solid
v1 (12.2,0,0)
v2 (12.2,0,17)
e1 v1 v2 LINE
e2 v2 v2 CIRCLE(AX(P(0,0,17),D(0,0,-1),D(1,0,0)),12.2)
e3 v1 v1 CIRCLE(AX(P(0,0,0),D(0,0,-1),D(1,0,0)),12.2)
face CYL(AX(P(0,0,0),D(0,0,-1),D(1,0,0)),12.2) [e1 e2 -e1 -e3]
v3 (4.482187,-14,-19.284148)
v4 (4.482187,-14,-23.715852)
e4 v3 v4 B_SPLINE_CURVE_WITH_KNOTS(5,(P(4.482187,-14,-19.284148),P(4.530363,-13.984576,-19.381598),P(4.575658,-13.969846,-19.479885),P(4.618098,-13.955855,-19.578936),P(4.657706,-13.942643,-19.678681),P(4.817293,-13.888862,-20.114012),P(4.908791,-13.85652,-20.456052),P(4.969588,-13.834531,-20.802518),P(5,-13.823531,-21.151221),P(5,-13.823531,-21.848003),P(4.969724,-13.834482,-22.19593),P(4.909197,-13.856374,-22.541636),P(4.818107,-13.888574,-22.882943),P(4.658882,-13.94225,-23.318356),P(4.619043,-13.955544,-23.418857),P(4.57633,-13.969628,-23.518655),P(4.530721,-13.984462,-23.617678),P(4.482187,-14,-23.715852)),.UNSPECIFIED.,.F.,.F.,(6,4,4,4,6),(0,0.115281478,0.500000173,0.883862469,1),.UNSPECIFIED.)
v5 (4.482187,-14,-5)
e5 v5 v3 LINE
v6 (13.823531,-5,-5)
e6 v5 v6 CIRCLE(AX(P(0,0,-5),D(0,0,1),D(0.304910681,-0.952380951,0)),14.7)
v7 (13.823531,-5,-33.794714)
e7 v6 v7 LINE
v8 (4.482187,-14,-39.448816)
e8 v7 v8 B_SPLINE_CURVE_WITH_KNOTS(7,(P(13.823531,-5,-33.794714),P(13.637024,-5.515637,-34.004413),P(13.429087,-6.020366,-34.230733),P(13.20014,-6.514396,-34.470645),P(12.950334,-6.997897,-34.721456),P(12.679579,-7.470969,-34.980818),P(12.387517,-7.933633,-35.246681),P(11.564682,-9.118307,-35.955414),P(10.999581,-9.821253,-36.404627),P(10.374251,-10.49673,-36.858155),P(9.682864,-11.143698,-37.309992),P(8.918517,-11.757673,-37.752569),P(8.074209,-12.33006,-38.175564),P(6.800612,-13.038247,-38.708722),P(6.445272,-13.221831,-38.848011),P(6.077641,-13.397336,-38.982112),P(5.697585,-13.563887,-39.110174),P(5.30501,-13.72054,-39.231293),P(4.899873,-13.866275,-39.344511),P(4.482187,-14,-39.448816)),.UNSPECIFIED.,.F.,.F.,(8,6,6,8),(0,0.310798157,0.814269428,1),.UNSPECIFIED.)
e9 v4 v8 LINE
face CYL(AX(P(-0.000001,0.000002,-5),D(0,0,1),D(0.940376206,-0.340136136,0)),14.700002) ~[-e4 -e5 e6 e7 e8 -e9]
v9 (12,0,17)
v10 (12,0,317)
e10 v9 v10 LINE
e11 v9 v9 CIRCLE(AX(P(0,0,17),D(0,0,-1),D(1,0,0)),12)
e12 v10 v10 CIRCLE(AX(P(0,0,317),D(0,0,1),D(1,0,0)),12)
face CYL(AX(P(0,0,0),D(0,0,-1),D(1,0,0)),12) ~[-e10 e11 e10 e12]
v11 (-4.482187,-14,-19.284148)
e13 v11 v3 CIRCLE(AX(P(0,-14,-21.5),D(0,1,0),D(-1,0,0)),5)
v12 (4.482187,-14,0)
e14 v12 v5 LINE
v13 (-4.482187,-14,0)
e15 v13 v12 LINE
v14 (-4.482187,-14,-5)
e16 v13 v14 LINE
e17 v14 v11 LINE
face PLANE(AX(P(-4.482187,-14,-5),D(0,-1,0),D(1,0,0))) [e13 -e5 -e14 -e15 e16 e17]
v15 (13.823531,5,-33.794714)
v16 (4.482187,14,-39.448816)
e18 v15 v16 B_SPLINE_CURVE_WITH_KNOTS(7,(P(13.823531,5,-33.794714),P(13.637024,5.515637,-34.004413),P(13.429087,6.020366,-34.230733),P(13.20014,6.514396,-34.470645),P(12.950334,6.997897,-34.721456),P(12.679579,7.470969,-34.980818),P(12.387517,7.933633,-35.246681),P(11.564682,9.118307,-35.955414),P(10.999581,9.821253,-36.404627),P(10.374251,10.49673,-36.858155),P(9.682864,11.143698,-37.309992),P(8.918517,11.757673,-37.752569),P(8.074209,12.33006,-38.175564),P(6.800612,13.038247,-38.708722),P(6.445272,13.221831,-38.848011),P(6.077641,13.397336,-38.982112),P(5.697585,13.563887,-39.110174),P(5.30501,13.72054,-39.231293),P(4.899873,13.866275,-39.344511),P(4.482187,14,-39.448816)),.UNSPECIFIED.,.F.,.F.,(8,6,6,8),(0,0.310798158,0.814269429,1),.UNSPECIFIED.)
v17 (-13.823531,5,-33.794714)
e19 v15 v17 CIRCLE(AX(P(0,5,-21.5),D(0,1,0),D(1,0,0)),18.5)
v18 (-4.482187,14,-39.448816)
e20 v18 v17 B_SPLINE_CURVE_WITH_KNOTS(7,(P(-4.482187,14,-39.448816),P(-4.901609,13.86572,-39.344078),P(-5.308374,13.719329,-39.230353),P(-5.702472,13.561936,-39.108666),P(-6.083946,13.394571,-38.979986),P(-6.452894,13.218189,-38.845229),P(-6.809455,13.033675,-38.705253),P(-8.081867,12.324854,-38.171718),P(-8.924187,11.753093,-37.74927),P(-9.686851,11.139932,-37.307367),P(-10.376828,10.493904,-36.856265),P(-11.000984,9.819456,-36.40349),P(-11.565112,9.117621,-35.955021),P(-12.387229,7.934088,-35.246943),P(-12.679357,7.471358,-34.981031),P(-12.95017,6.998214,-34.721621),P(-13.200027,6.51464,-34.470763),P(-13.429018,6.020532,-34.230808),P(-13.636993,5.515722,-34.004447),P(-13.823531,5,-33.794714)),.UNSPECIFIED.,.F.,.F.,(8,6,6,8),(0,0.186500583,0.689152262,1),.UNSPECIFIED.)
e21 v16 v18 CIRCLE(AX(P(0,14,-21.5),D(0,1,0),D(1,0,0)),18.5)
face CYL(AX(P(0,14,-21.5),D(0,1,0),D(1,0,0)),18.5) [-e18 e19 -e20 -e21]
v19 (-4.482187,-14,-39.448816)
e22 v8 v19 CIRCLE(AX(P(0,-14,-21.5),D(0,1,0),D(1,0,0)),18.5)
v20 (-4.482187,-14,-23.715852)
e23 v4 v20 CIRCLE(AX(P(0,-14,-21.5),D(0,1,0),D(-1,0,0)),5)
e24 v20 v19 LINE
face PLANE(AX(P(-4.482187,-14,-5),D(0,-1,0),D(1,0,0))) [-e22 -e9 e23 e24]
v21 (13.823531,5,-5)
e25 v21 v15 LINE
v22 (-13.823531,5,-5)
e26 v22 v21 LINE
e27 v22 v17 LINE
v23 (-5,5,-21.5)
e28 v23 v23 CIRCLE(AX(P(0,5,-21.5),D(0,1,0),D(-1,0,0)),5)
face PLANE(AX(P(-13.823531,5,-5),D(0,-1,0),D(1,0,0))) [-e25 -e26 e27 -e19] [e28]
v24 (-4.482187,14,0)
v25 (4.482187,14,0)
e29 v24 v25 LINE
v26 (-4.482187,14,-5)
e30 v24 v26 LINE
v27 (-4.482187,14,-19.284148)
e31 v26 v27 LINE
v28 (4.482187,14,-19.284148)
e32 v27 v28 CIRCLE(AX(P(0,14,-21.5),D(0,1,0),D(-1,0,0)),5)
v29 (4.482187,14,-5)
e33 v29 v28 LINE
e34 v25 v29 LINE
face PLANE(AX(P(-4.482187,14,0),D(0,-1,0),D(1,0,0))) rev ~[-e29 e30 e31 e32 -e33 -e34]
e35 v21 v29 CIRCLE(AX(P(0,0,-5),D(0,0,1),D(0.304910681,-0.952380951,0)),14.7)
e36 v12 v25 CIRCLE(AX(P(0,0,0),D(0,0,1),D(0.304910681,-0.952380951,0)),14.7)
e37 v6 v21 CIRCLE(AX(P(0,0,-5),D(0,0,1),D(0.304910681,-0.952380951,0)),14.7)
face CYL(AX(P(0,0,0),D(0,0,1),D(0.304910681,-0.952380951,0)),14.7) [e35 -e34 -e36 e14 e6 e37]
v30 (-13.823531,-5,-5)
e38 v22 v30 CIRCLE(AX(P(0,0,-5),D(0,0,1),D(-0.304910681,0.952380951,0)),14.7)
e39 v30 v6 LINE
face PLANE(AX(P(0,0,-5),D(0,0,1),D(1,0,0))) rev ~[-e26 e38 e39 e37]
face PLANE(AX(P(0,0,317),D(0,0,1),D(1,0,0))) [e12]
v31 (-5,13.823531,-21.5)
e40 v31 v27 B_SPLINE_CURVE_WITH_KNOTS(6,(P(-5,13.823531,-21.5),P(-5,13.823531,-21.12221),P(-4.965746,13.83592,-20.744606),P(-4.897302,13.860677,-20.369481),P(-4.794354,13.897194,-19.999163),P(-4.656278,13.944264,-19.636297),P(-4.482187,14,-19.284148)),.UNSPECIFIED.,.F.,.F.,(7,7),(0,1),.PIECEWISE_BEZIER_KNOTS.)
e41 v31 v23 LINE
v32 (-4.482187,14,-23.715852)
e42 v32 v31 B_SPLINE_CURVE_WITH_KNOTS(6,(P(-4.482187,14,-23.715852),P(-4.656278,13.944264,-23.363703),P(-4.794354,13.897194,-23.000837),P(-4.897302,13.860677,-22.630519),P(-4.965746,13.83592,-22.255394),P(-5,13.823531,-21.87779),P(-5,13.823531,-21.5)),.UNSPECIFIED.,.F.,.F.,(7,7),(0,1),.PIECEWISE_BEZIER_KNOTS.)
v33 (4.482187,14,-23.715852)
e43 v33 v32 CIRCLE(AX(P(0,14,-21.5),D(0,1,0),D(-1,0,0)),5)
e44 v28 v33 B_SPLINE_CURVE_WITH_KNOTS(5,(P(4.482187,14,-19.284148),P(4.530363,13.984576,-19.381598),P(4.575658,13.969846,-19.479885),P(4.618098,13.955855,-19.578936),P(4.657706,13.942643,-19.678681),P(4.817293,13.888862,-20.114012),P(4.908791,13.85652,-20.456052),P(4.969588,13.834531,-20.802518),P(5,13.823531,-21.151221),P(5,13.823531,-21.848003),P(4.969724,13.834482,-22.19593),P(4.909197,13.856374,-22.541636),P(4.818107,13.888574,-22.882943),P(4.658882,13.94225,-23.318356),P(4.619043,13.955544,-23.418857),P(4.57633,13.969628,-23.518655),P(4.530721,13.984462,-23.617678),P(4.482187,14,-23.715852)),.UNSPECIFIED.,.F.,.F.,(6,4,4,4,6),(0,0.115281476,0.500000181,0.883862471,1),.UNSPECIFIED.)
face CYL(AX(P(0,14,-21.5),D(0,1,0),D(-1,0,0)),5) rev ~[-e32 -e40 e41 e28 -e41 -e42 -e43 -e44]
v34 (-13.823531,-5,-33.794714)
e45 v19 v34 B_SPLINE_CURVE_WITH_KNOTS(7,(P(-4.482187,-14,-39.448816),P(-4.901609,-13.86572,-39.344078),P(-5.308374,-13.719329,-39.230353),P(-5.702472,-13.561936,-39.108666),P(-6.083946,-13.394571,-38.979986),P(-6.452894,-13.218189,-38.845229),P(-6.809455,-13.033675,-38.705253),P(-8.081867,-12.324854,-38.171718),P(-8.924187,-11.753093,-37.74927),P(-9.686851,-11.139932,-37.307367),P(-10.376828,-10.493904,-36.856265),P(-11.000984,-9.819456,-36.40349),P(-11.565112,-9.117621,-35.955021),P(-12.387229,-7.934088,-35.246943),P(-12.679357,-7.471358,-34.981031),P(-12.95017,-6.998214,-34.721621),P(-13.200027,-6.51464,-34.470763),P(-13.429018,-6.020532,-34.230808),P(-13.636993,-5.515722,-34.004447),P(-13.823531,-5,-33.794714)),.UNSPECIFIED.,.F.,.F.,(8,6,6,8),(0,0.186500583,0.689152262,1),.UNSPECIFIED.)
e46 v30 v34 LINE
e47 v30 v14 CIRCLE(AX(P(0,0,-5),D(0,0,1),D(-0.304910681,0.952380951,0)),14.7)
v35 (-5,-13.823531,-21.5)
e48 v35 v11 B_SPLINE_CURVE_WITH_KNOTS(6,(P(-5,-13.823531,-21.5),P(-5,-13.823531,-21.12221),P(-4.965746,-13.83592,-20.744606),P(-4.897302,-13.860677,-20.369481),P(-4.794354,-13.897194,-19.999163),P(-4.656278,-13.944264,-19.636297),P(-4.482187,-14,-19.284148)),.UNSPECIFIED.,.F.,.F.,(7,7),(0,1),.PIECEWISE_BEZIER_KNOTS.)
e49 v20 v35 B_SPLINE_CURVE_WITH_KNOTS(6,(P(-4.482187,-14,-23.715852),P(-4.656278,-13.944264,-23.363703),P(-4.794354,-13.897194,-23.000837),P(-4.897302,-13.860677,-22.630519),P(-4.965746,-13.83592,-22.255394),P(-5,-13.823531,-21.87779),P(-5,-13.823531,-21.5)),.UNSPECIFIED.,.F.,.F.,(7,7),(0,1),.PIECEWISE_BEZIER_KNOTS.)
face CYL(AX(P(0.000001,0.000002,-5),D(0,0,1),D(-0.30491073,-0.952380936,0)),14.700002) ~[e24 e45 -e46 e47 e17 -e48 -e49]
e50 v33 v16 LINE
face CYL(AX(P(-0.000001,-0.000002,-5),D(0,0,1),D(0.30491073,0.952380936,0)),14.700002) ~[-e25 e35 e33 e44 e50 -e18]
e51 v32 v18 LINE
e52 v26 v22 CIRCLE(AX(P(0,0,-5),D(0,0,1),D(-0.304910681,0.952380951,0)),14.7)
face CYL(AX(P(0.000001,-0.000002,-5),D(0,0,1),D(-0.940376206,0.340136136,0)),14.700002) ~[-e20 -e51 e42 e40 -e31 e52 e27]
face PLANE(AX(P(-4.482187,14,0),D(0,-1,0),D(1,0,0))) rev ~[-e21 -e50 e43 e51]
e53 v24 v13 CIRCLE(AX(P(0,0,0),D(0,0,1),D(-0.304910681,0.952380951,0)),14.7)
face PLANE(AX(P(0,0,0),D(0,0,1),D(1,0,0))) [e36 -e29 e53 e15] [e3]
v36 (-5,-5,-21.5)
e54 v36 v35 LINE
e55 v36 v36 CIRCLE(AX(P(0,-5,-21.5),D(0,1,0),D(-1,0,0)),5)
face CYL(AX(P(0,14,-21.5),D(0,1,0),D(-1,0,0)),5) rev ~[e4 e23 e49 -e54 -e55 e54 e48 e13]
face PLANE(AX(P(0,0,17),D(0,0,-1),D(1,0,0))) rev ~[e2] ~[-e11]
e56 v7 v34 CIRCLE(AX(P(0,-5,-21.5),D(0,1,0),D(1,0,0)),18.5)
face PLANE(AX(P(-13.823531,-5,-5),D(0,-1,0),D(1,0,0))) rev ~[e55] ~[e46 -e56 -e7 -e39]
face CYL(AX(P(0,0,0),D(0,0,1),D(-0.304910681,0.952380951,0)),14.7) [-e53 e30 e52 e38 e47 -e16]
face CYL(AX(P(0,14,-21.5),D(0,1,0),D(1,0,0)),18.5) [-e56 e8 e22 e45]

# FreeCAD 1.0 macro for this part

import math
import FreeCAD as App
import Part
import Sketcher

V = App.Vector

doc = App.newDocument("Part")
body = doc.addObject("PartDesign::Body", "Body")

# Sketch on XY plane
sketch1 = body.newObject("Sketcher::SketchObject", "Sketch")
sketch1.AttachmentSupport = (doc.getObject("XY_Plane"), [""])
sketch1.MapMode = "FlatFace"
sketch1.addGeometry(Part.Circle(V(0, 0, 0), V(0, 0, 1), 12), False)
sketch1.addConstraint([
    Sketcher.Constraint("Coincident", 0, 3, -1, 1),
    Sketcher.Constraint("Diameter", 0, 24.0),
])
pad1 = body.newObject("PartDesign::Pad", "Pad")
pad1.Profile = sketch1
pad1.Length = 317

# Sketch on XY plane
sketch2 = body.newObject("Sketcher::SketchObject", "Sketch001")
sketch2.AttachmentSupport = (doc.getObject("XY_Plane"), [""])
sketch2.MapMode = "FlatFace"
sketch2.addGeometry([
    Part.ArcOfCircle(Part.Circle(V(0, 0, 0), V(0, 0, 1), 15), math.radians(108), math.radians(252)),
    Part.LineSegment(V(-4, -14, 0), V(4, -14, 0)),
    Part.ArcOfCircle(Part.Circle(V(0, 0, 0), V(0, 0, 1), 15), math.radians(-72), math.radians(72)),
    Part.LineSegment(V(4, 14, 0), V(-4, 14, 0)),
], False)
sketch2.addConstraint([
    Sketcher.Constraint("Coincident", 0, 2, 1, 1),
    Sketcher.Constraint("Coincident", 1, 2, 2, 1),
    Sketcher.Constraint("Coincident", 2, 2, 3, 1),
    Sketcher.Constraint("Coincident", 3, 2, 0, 1),
    Sketcher.Constraint("Horizontal", 1),
    Sketcher.Constraint("Horizontal", 3),
    Sketcher.Constraint("Coincident", 0, 3, -1, 1),
    Sketcher.Constraint("Coincident", 2, 3, -1, 1),
    Sketcher.Constraint("Equal", 0, 2),
    Sketcher.Constraint("Vertical", 1, 2, 2, 2),
    Sketcher.Constraint("Radius", 0, 14.7),
    Sketcher.Constraint("DistanceY", 0, 2, -1, 1, 14.0),
])
pad2 = body.newObject("PartDesign::Pad", "Pad001")
pad2.Profile = sketch2
pad2.Length = 5
pad2.Reversed = True

# Sketch on XY plane
sketch3 = body.newObject("Sketcher::SketchObject", "Sketch002")
sketch3.AttachmentSupport = (doc.getObject("XY_Plane"), [""])
sketch3.MapMode = "FlatFace"
sketch3.addGeometry(Part.Circle(V(0, 0, 0), V(0, 0, 1), 12), False)
sketch3.addConstraint([
    Sketcher.Constraint("Coincident", 0, 3, -1, 1),
    Sketcher.Constraint("Diameter", 0, 24.4),
])
pad3 = body.newObject("PartDesign::Pad", "Pad002")
pad3.Profile = sketch3
pad3.Length = 17

# Sketch on XY plane
sketch4 = body.newObject("Sketcher::SketchObject", "Sketch003")
sketch4.AttachmentSupport = (doc.getObject("XY_Plane"), [""])
sketch4.MapMode = "FlatFace"
sketch4.AttachmentOffset = App.Placement(V(0, 0, -5), App.Rotation())
sketch4.addGeometry([
    Part.ArcOfCircle(Part.Circle(V(0, 0, 0), V(0, 0, 1), 15), math.radians(-160), math.radians(-108)),  # 0
    Part.LineSegment(V(-14, -5, 0), V(14, -5, 0)),  # 1
    Part.ArcOfCircle(Part.Circle(V(0, 0, 0), V(0, 0, 1), 15), math.radians(-72), math.radians(-20)),  # 2
    Part.LineSegment(V(4, -14, 0), V(-4, -14, 0)),  # 3
    Part.LineSegment(V(14, 5, 0), V(-14, 5, 0)),  # 4
    Part.ArcOfCircle(Part.Circle(V(0, 0, 0), V(0, 0, 1), 15), math.radians(108), math.radians(160)),  # 5
    Part.LineSegment(V(-4, 14, 0), V(4, 14, 0)),  # 6
    Part.ArcOfCircle(Part.Circle(V(0, 0, 0), V(0, 0, 1), 15), math.radians(20), math.radians(72)),  # 7
], False)
sketch4.addConstraint([
    Sketcher.Constraint("Coincident", 0, 1, 1, 1),
    Sketcher.Constraint("Coincident", 1, 2, 2, 2),
    Sketcher.Constraint("Coincident", 2, 1, 3, 1),
    Sketcher.Constraint("Coincident", 3, 2, 0, 2),
    Sketcher.Constraint("Coincident", 4, 2, 5, 2),
    Sketcher.Constraint("Coincident", 5, 1, 6, 1),
    Sketcher.Constraint("Coincident", 6, 2, 7, 2),
    Sketcher.Constraint("Coincident", 7, 1, 4, 1),
    Sketcher.Constraint("Horizontal", 1),
    Sketcher.Constraint("Horizontal", 3),
    Sketcher.Constraint("Horizontal", 4),
    Sketcher.Constraint("Horizontal", 6),
    Sketcher.Constraint("Coincident", 0, 3, -1, 1),
    Sketcher.Constraint("Coincident", 2, 3, -1, 1),
    Sketcher.Constraint("Coincident", 5, 3, -1, 1),
    Sketcher.Constraint("Coincident", 7, 3, -1, 1),
    Sketcher.Constraint("Equal", 0, 2),
    Sketcher.Constraint("Equal", 2, 5),
    Sketcher.Constraint("Equal", 5, 7),
    Sketcher.Constraint("Vertical", 0, 1, 4, 2),
    Sketcher.Constraint("Vertical", 3, 2, 5, 1),
    Sketcher.Constraint("DistanceY", 0, 1, -1, 1, 5.0),
    Sketcher.Constraint("DistanceY", 2, 1, -1, 1, 14.0),
    Sketcher.Constraint("Radius", 0, 14.700002),
])
pad4 = body.newObject("PartDesign::Pad", "Pad003")
pad4.Profile = sketch4
pad4.Length = 36
pad4.Reversed = True

# Sketch on XZ plane
sketch5 = body.newObject("Sketcher::SketchObject", "Sketch004")
sketch5.AttachmentSupport = (doc.getObject("XZ_Plane"), [""])
sketch5.MapMode = "FlatFace"
sketch5.AttachmentOffset = App.Placement(V(0, 0, -14), App.Rotation())
sketch5.addGeometry([
    Part.Circle(V(0, -22, 0), V(0, 0, 1), 5),  # 0
    Part.ArcOfCircle(Part.Circle(V(0, -22, 0), V(0, 0, 1), 18), math.radians(180), math.radians(360)),  # 1
    Part.LineSegment(V(18, -22, 0), V(18, -43, 0)),  # 2
    Part.LineSegment(V(18, -43, 0), V(-18, -43, 0)),  # 3
    Part.LineSegment(V(-18, -43, 0), V(-18, -22, 0)),  # 4
], False)
sketch5.addConstraint([
    Sketcher.Constraint("Tangent", 1, 2, 2, 1),
    Sketcher.Constraint("Coincident", 2, 2, 3, 1),
    Sketcher.Constraint("Coincident", 3, 2, 4, 1),
    Sketcher.Constraint("Tangent", 4, 2, 1, 1),
    Sketcher.Constraint("Vertical", 2),
    Sketcher.Constraint("Horizontal", 3),
    Sketcher.Constraint("Vertical", 4),
    Sketcher.Constraint("Coincident", 1, 3, 0, 3),
    Sketcher.Constraint("PointOnObject", 0, 3, -2),
    Sketcher.Constraint("Diameter", 0, 10.0),
    Sketcher.Constraint("Radius", 1, 18.5),
    Sketcher.Constraint("DistanceY", 2, 2, 2, 1, 21.5),
    Sketcher.Constraint("DistanceY", 2, 2, -1, 1, 43.0),
])
pocket1 = body.newObject("PartDesign::Pocket", "Pocket")
pocket1.Profile = sketch5
pocket1.Type = "ThroughAll"
pocket1.Reversed = True

doc.recompute()
